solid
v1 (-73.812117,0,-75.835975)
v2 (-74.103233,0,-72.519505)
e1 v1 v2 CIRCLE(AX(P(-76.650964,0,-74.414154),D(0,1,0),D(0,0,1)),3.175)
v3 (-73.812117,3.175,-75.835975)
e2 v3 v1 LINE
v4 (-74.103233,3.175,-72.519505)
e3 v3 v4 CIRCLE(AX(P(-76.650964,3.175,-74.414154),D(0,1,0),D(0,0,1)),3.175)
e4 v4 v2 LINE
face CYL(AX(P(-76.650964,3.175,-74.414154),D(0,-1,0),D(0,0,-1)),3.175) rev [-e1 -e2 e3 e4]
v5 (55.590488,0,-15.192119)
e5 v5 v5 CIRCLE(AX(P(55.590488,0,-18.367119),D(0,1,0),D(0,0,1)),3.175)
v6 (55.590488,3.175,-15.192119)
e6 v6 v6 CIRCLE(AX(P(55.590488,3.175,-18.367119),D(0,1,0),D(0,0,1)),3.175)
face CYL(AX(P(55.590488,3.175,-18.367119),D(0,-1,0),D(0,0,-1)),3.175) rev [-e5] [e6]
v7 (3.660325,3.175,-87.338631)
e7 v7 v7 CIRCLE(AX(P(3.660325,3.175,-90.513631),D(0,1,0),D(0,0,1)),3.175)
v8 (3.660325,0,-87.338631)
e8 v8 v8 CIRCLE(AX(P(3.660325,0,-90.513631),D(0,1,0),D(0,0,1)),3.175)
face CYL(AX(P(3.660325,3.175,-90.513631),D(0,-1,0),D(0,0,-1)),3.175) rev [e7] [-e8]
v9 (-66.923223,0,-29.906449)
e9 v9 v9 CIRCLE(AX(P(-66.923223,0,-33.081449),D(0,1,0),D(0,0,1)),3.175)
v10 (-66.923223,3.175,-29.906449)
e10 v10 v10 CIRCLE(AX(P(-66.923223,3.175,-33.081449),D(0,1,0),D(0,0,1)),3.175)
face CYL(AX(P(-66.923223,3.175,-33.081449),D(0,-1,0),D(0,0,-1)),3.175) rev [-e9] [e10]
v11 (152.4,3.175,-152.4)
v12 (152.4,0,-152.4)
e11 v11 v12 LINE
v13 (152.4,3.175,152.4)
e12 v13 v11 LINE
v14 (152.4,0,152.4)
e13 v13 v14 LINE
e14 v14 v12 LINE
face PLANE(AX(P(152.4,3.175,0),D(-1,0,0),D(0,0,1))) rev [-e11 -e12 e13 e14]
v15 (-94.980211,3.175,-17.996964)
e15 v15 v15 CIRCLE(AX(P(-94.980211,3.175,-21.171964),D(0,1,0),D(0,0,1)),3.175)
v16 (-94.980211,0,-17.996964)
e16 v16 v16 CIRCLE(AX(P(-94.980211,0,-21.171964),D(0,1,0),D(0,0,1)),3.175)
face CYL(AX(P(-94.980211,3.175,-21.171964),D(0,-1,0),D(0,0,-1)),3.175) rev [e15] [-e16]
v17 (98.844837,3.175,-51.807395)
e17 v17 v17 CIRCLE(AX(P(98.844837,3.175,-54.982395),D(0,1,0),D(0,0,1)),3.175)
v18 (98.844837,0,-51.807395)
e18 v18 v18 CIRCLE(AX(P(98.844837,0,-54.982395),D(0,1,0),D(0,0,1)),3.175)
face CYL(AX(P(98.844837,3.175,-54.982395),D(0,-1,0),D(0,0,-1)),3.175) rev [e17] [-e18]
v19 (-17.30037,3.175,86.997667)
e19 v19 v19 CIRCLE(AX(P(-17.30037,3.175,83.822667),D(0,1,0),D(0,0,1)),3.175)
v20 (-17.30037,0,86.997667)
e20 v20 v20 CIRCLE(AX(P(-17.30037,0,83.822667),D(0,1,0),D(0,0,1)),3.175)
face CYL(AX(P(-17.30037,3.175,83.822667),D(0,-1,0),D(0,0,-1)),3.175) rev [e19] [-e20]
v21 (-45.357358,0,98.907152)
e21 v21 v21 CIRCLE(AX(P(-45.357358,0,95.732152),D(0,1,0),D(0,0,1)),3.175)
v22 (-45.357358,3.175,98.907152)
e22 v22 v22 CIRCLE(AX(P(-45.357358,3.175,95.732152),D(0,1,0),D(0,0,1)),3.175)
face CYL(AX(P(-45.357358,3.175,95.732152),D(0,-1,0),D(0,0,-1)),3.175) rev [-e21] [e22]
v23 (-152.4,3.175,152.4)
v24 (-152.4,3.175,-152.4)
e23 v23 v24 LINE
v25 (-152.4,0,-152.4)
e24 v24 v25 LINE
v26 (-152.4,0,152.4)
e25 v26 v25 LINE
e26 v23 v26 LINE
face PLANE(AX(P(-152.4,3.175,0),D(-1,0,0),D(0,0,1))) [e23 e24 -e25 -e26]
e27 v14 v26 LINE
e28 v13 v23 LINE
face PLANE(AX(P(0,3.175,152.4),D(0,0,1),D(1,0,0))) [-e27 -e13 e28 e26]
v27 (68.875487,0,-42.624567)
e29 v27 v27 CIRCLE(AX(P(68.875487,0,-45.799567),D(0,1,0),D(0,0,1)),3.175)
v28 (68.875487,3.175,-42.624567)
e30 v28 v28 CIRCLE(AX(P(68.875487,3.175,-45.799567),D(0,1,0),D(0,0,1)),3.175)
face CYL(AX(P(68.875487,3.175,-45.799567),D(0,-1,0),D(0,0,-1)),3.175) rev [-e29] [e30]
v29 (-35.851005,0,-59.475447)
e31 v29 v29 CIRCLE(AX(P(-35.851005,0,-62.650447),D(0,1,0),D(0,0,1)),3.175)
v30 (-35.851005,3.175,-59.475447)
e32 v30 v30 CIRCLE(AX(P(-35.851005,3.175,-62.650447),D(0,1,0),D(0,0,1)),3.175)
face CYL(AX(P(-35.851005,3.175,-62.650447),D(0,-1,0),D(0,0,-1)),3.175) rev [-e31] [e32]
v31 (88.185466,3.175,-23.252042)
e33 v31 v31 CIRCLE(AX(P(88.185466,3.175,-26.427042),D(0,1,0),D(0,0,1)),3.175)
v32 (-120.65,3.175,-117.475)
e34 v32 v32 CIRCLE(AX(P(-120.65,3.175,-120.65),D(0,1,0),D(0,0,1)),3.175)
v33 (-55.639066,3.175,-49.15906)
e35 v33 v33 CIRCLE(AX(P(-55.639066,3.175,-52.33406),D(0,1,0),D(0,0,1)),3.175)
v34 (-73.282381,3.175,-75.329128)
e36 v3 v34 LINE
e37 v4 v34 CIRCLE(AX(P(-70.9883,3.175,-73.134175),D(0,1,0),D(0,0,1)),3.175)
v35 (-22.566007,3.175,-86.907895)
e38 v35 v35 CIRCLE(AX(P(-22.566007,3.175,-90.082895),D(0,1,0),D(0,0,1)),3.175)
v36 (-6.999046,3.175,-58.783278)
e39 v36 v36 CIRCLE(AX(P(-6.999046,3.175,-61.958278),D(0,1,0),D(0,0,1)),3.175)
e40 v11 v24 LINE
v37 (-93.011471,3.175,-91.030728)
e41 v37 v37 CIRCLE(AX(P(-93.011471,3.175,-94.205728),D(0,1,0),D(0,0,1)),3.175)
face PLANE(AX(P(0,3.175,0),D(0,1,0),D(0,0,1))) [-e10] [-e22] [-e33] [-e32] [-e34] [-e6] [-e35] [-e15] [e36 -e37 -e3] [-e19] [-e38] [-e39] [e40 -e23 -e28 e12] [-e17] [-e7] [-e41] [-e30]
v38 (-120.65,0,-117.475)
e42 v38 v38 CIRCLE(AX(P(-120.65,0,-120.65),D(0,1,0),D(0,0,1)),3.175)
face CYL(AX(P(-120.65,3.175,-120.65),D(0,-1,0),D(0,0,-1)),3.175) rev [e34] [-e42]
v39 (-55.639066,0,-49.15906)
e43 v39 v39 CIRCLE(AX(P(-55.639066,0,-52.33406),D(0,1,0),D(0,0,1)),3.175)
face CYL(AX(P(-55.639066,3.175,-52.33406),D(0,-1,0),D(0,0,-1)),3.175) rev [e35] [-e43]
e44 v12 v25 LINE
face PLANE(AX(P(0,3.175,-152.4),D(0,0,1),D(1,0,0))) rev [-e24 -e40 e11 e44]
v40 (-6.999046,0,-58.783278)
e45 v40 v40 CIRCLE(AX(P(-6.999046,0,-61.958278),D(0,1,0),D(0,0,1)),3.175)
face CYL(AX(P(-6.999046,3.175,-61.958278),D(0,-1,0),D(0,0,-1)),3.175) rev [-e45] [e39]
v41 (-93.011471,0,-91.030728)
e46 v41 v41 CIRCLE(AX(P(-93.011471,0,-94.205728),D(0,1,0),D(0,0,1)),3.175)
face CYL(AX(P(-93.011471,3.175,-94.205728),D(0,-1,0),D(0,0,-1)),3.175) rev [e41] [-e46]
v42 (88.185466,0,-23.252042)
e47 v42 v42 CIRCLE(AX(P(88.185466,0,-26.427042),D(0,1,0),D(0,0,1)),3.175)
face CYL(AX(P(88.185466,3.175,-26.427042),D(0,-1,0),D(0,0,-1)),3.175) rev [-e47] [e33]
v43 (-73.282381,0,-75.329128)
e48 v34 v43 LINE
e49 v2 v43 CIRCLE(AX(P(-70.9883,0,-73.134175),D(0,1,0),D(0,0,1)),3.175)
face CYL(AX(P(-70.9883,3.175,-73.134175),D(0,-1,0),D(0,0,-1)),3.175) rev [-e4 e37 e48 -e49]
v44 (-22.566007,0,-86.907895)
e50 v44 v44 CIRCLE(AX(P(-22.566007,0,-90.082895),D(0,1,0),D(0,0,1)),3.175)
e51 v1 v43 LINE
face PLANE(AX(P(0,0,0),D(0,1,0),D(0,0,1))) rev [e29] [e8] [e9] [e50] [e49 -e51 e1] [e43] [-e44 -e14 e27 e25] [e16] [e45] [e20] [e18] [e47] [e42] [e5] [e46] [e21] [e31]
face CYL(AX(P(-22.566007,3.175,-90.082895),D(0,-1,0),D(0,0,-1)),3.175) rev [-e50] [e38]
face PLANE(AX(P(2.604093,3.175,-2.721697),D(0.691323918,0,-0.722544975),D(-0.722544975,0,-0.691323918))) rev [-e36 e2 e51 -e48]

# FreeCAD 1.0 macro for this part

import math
import FreeCAD as App
import Part
import Sketcher

V = App.Vector
Q = App.Units.Quantity


def add_polygon(sketch, points):
    """Adds a closed chain of lines whose ends are joined by coincident constraints."""
    first, n = sketch.GeometryCount, len(points)
    for a, b in zip(points, points[1:] + points[:1]):
        sketch.addGeometry(Part.LineSegment(App.Vector(*a, 0), App.Vector(*b, 0)), False)
    for i in range(n):
        sketch.addConstraint(Sketcher.Constraint("Coincident", first + i, 2, first + (i + 1) % n, 1))

doc = App.newDocument("Part")
body = doc.addObject("PartDesign::Body", "Body")

# Sketch on XZ plane
sketch1 = body.newObject("Sketcher::SketchObject", "Sketch")
sketch1.AttachmentSupport = (doc.getObject("XZ_Plane"), [""])
sketch1.MapMode = "FlatFace"
add_polygon(sketch1, [(-152.4, -152.4), (-152.4, 152.4), (152.4, 152.4), (152.4, -152.4)])  # lines 0-3
sketch1.addGeometry(Part.Circle(V(-45.4, 95.7, 0), V(0, 0, 1), 3.2), False)  # 4
sketch1.addGeometry(Part.Circle(V(-17.3, 83.8, 0), V(0, 0, 1), 3.2), False)  # 5
sketch1.addGeometry(Part.Circle(V(-95, -21.2, 0), V(0, 0, 1), 3.2), False)  # 6
sketch1.addGeometry(Part.Circle(V(-66.9, -33.1, 0), V(0, 0, 1), 3.2), False)  # 7
sketch1.addGeometry(Part.ArcOfCircle(Part.Circle(V(-55.6, -52.3, 0), V(0, 0, 1), 3.2), math.radians(-134), math.radians(0)), False)  # 8
sketch1.addGeometry(Part.ArcOfCircle(Part.Circle(V(-55.6, -52.3, 0), V(0, 0, 1), 3.2), math.radians(0), math.radians(226)), False)  # 9
sketch1.addGeometry(Part.Circle(V(-35.9, -62.7, 0), V(0, 0, 1), 3.2), False)  # 10
sketch1.addGeometry(Part.ArcOfCircle(Part.Circle(V(-76.7, -74.4, 0), V(0, 0, 1), 3.2), math.radians(36.64), math.radians(46.42)), False)  # 11
sketch1.addGeometry(Part.ArcOfCircle(Part.Circle(V(-76.7, -74.4, 0), V(0, 0, 1), 3.2), math.radians(46), math.radians(294)), False)  # 12
sketch1.addGeometry(Part.ArcOfCircle(Part.Circle(V(-76.7, -74.4, 0), V(0, 0, 1), 3.2), math.radians(-66), math.radians(-27)), False)  # 13
sketch1.addGeometry(Part.LineSegment(V(-73.8, -75.8, 0), V(-73.3, -75.3, 0)), False)  # 14
sketch1.addGeometry(Part.ArcOfCircle(Part.Circle(V(-71, -73.1, 0), V(0, 0, 1), 3.2), math.radians(-136), math.radians(0)), False)  # 15
sketch1.addGeometry(Part.ArcOfCircle(Part.Circle(V(-71, -73.1, 0), V(0, 0, 1), 3.2), math.radians(0), math.radians(169)), False)  # 16
sketch1.addGeometry(Part.ArcOfCircle(Part.Circle(V(-93, -94.2, 0), V(0, 0, 1), 3.2), math.radians(44), math.radians(360)), False)  # 17
sketch1.addGeometry(Part.ArcOfCircle(Part.Circle(V(-93, -94.2, 0), V(0, 0, 1), 3.2), math.radians(0), math.radians(44)), False)  # 18
sketch1.addGeometry(Part.Circle(V(-120.7, -120.7, 0), V(0, 0, 1), 3.2), False)  # 19
sketch1.addGeometry(Part.Circle(V(-22.6, -90.1, 0), V(0, 0, 1), 3.2), False)  # 20
sketch1.addGeometry(Part.Circle(V(-7, -62, 0), V(0, 0, 1), 3.2), False)  # 21
sketch1.addGeometry(Part.Circle(V(55.6, -18.4, 0), V(0, 0, 1), 3.2), False)  # 22
sketch1.addGeometry(Part.Circle(V(88.2, -26.4, 0), V(0, 0, 1), 3.2), False)  # 23
sketch1.addGeometry(Part.Circle(V(68.9, -45.8, 0), V(0, 0, 1), 3.2), False)  # 24
sketch1.addGeometry(Part.Circle(V(98.8, -55, 0), V(0, 0, 1), 3.2), False)  # 25
sketch1.addGeometry(Part.Circle(V(3.7, -90.5, 0), V(0, 0, 1), 3.2), False)  # 26
sketch1.addConstraint([
    Sketcher.Constraint("Tangent", 8, 1, 9, 2),
    Sketcher.Constraint("Coincident", 9, 1, 8, 2),
    Sketcher.Constraint("Tangent", 11, 2, 12, 1),
    Sketcher.Constraint("Tangent", 12, 2, 13, 1),
    Sketcher.Constraint("Coincident", 13, 2, 14, 1),
    Sketcher.Constraint("Coincident", 14, 2, 15, 1),
    Sketcher.Constraint("Tangent", 15, 2, 16, 1),
    Sketcher.Constraint("Coincident", 16, 2, 11, 1),
    Sketcher.Constraint("Tangent", 17, 1, 18, 2),
    Sketcher.Constraint("Coincident", 18, 1, 17, 2),
    Sketcher.Constraint("Vertical", 0),
    Sketcher.Constraint("Horizontal", 1),
    Sketcher.Constraint("Vertical", 2),
    Sketcher.Constraint("Horizontal", 3),
    Sketcher.Constraint("Coincident", 13, 3, 11, 3),
    Sketcher.Constraint("Equal", 4, 5),
    Sketcher.Constraint("Equal", 5, 6),
    Sketcher.Constraint("Equal", 6, 7),
    Sketcher.Constraint("Equal", 7, 8),
    Sketcher.Constraint("Equal", 9, 10),
    Sketcher.Constraint("Equal", 10, 11),
    Sketcher.Constraint("Equal", 13, 15),
    Sketcher.Constraint("Equal", 15, 16),
    Sketcher.Constraint("Equal", 16, 17),
    Sketcher.Constraint("Equal", 18, 19),
    Sketcher.Constraint("Equal", 19, 20),
    Sketcher.Constraint("Equal", 20, 21),
    Sketcher.Constraint("Equal", 21, 22),
    Sketcher.Constraint("Equal", 22, 23),
    Sketcher.Constraint("Equal", 23, 24),
    Sketcher.Constraint("Equal", 24, 25),
    Sketcher.Constraint("Equal", 25, 26),
    Sketcher.Constraint("Symmetric", 0, 2, 2, 2, -1, 1),
    Sketcher.Constraint("Horizontal", 8, 3, 9, 1),
    Sketcher.Constraint("Horizontal", 16, 3, 15, 2),
    Sketcher.Constraint("Horizontal", 17, 3, 18, 1),
    Sketcher.Constraint("Equal", 3, 0),
    Sketcher.Constraint("Diameter", 4, Q("0.25 in")),
    Sketcher.Constraint("DistanceX", 1, 1, 1, 2, Q("12 in")),
    Sketcher.Constraint("DistanceX", 19, 3, -1, 1, Q("4.75 in")),
    Sketcher.Constraint("DistanceY", 19, 3, -1, 1, Q("4.75 in")),
    Sketcher.Constraint("DistanceX", 15, 3, -1, 1, Q("70.9883 mm")),
    Sketcher.Constraint("DistanceY", 7, 3, 4, 3, Q("128.813601 mm")),
    Sketcher.Constraint("DistanceX", 10, 3, 20, 3, Q("13.284999 mm")),
    Sketcher.Constraint("DistanceX", 22, 3, 24, 3, Q("13.284999 mm")),
    Sketcher.Constraint("DistanceY", 20, 3, 25, 3, Q("35.1005 mm")),
    Sketcher.Constraint("DistanceX", 8, 1, 10, 3, Q("21.9768 mm")),
    Sketcher.Constraint("DistanceY", 13, 2, 15, 2, Q("2.7018 mm")),
    Sketcher.Constraint("DistanceY", -1, 1, 4, 3, Q("95.732152 mm")),
    Sketcher.Constraint("DistanceX", 5, 3, -1, 1, Q("17.30037 mm")),
    Sketcher.Constraint("DistanceX", 6, 3, -1, 1, Q("94.980211 mm")),
    Sketcher.Constraint("DistanceY", 8, 3, -1, 1, Q("52.33406 mm")),
    Sketcher.Constraint("DistanceX", 17, 3, -1, 1, Q("93.011471 mm")),
    Sketcher.Constraint("DistanceX", -1, 1, 22, 3, Q("55.590488 mm")),
    Sketcher.Constraint("DistanceY", 22, 3, -1, 1, Q("18.367119 mm")),
    Sketcher.Constraint("DistanceY", 23, 3, -1, 1, Q("26.427042 mm")),
    Sketcher.Constraint("DistanceY", 26, 3, -1, 1, Q("90.513631 mm")),
    Sketcher.Constraint("DistanceY", 8, 1, -1, 1, Q("54.63407 mm")),
    Sketcher.Constraint("DistanceX", 14, 2, -1, 1, Q("73.282381 mm")),
    Sketcher.Constraint("DistanceY", 14, 2, -1, 1, Q("75.329128 mm")),
    Sketcher.Constraint("DistanceX", 17, 1, -1, 1, Q("90.717391 mm")),
    Sketcher.Constraint("DistanceY", 6, 3, 5, 3, Q("104.994632 mm")),
    Sketcher.Constraint("DistanceX", 8, 3, 4, 3, Q("10.281708 mm")),
    Sketcher.Constraint("DistanceX", 11, 3, 10, 3, Q("40.799958 mm")),
    Sketcher.Constraint("DistanceX", 11, 3, 7, 3, Q("9.727741 mm")),
    Sketcher.Constraint("DistanceY", 11, 3, 6, 3, Q("53.242189 mm")),
    Sketcher.Constraint("DistanceY", 11, 3, 15, 3, Q("1.279979 mm")),
    Sketcher.Constraint("DistanceY", 20, 3, 10, 3, Q("27.432448 mm")),
    Sketcher.Constraint("DistanceY", 20, 3, 15, 3, Q("16.948721 mm")),
    Sketcher.Constraint("DistanceX", 10, 3, 21, 3, Q("28.851959 mm")),
    Sketcher.Constraint("DistanceY", 10, 3, 21, 3, Q("0.692169 mm")),
    Sketcher.Constraint("DistanceX", 21, 3, 23, 3, Q("95.184512 mm")),
    Sketcher.Constraint("DistanceX", 24, 3, 23, 3, Q("19.309979 mm")),
    Sketcher.Constraint("DistanceY", 24, 3, 22, 3, Q("27.432448 mm")),
    Sketcher.Constraint("DistanceX", 23, 3, 25, 3, Q("10.659371 mm")),
    Sketcher.Constraint("DistanceX", 20, 3, 26, 3, Q("26.226332 mm")),
    Sketcher.Constraint("DistanceX", 11, 3, 11, 2, Q("2.188739 mm")),
    Sketcher.Constraint("DistanceX", 12, 3, 12, 2, Q("1.295122 mm")),
    Sketcher.Constraint("DistanceY", 17, 1, 12, 2, Q("14.697778 mm")),
])
pad1 = body.newObject("PartDesign::Pad", "Pad")
pad1.Profile = sketch1
pad1.Length = Q("0.125 in")
pad1.Reversed = True

doc.recompute()
